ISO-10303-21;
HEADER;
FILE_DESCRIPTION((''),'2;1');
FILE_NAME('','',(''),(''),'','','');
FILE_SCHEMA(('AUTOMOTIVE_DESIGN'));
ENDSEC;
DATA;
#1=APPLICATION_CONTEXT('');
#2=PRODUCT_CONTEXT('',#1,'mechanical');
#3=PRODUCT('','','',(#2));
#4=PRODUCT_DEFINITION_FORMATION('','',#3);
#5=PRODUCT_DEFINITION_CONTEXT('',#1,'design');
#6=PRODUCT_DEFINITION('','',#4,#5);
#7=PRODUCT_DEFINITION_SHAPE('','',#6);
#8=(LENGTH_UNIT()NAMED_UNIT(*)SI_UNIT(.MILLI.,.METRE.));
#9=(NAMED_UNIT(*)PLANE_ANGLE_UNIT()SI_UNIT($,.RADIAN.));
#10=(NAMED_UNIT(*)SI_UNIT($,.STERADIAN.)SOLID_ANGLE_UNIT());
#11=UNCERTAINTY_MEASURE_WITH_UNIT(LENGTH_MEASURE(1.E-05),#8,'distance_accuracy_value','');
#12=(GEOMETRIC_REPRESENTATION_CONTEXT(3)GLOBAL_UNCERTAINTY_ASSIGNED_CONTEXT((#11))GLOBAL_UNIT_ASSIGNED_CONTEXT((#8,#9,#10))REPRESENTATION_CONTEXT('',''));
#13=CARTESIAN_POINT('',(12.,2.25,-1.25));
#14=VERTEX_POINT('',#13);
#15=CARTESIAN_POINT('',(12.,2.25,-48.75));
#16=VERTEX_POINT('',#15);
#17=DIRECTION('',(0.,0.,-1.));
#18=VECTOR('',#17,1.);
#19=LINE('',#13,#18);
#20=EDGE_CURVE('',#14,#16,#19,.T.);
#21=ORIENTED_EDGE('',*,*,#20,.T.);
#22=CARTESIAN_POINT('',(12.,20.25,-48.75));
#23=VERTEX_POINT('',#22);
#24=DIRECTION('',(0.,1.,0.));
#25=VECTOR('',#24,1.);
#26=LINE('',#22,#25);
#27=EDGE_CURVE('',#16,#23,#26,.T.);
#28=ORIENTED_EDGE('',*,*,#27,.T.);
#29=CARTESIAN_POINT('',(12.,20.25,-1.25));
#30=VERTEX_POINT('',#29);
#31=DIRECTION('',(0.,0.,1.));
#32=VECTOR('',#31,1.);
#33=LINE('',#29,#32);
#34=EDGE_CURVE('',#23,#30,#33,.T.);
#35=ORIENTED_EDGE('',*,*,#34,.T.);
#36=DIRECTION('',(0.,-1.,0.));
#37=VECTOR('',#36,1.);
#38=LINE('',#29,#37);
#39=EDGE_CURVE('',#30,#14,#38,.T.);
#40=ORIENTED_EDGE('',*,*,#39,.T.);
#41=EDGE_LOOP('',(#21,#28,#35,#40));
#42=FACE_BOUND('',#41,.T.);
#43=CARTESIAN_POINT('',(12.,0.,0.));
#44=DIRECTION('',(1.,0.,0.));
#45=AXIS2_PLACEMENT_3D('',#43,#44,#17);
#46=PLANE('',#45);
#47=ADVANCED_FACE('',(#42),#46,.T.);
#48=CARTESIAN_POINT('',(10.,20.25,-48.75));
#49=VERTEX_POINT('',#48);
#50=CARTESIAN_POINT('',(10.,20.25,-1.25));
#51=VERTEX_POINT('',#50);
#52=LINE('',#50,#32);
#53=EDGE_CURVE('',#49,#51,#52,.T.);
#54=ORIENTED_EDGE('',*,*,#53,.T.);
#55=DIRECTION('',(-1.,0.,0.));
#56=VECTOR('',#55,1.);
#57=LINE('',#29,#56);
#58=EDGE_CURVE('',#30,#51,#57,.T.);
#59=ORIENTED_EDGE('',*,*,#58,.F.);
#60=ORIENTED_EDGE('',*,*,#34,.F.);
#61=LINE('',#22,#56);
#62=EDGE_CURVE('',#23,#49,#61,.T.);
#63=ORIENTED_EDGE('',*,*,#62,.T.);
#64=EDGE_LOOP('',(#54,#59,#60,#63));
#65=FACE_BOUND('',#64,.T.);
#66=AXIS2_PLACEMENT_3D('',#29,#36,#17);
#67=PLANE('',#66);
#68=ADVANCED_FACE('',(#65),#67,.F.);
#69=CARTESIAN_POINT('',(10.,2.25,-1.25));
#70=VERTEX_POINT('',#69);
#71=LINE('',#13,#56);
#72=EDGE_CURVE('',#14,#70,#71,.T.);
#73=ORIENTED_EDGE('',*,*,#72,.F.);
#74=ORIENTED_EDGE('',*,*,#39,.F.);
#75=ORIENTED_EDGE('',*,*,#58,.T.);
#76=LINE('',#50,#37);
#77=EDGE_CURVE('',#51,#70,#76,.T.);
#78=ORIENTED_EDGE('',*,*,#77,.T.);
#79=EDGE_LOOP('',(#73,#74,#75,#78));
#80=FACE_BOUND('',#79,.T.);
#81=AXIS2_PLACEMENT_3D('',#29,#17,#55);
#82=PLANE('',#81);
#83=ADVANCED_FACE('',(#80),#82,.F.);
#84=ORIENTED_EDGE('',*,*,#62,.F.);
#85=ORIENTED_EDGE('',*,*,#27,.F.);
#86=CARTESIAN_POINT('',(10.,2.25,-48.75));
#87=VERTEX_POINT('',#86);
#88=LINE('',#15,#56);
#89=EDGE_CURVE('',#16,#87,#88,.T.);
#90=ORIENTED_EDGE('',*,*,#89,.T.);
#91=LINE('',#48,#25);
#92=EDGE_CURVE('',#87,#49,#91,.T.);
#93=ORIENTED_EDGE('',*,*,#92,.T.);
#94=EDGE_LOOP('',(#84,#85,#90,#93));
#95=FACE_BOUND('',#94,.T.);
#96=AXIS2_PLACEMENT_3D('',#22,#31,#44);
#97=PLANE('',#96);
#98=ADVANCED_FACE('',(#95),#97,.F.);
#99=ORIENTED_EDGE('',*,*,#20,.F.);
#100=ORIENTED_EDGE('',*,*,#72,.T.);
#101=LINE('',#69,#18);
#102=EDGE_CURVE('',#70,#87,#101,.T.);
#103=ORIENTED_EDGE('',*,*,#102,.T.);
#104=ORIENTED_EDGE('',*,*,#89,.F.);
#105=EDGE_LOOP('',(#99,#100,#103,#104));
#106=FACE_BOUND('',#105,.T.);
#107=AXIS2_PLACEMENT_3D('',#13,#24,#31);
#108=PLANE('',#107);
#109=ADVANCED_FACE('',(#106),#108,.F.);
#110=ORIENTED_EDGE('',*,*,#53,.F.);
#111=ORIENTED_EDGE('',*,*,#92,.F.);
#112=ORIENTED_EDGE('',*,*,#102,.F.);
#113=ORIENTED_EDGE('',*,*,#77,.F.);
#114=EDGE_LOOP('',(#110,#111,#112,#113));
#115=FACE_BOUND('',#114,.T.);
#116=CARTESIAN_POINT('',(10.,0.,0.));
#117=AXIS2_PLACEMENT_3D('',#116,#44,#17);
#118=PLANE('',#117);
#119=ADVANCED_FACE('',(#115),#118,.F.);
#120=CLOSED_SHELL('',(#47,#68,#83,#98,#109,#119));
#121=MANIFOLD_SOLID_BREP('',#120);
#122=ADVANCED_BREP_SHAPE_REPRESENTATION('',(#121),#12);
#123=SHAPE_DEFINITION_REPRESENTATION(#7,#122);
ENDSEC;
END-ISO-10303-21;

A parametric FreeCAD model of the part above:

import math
import FreeCAD as App
import Part
import Sketcher

doc = App.newDocument("Part")
params = doc.addObject("Spreadsheet::Sheet", "Params")
for row, (alias, value) in enumerate([
    ("sketch1_height", "50 mm"),
    ("sketch1_width", "22.5 mm"),
    ("pad1_length", "10 mm"),
    ("sketch2_height", "6.05 mm"),
    ("pocket1_length", "10 mm"),
    ("sketch3_height", "10 mm"),
    ("pocket2_length", "10 mm"),
    ("sketch4_height", "48 mm"),
    ("sketch4_width", "18.5 mm"),
    ("pocket3_length", "8 mm"),
    ("sketch5_width", "10 mm"),
    ("sketch5_height", "22.5 mm"),
    ("sketch6_width", "18 mm"),
    ("sketch6_height", "47.5 mm"),
    ("pad2_length", "2 mm"),
], start=1):
    params.set(f"A{row}", alias)
    params.set(f"B{row}", "=" + value)
    params.setAlias(f"B{row}", alias)

body = doc.addObject("PartDesign::Body", "Body")

# Sketch on YZ plane
sketch1 = doc.addObject("Sketcher::SketchObject", "Sketch")
body.addObject(sketch1)
sketch1.AttachmentSupport = (doc.YZ_Plane, [""])
sketch1.MapMode = "FlatFace"
sketch1.addGeometry(Part.LineSegment(App.Vector(22.5, 0, 0), App.Vector(0, 0, 0)), False)
sketch1.addGeometry(Part.LineSegment(App.Vector(0, 0, 0), App.Vector(0, -50, 0)), False)
sketch1.addGeometry(Part.LineSegment(App.Vector(0, -50, 0), App.Vector(22.5, -50, 0)), False)
sketch1.addGeometry(Part.LineSegment(App.Vector(22.5, -50, 0), App.Vector(22.5, 0, 0)), False)
sketch1.addConstraint(Sketcher.Constraint("Coincident", 0, 2, 1, 1))
sketch1.addConstraint(Sketcher.Constraint("Coincident", 1, 2, 2, 1))
sketch1.addConstraint(Sketcher.Constraint("Coincident", 2, 2, 3, 1))
sketch1.addConstraint(Sketcher.Constraint("Coincident", 3, 2, 0, 1))
sketch1.addConstraint(Sketcher.Constraint("Horizontal", 0))
sketch1.addConstraint(Sketcher.Constraint("Vertical", 1))
sketch1.addConstraint(Sketcher.Constraint("Horizontal", 2))
sketch1.addConstraint(Sketcher.Constraint("Vertical", 3))
sketch1.addConstraint(Sketcher.Constraint("Coincident", 0, 2, -1, 1))
sketch1.addConstraint(Sketcher.Constraint("DistanceY", 1, 2, 1, 1, 50.0))
sketch1.addConstraint(Sketcher.Constraint("DistanceX", 0, 2, 0, 1, 22.5))
sketch1.setExpression("Constraints[9]", "Params.sketch1_height")
sketch1.setExpression("Constraints[10]", "Params.sketch1_width")
pad1 = doc.addObject("PartDesign::Pad", "Pad")
body.addObject(pad1)
pad1.Profile = sketch1
pad1.setExpression("Length", "Params.pad1_length")

# Sketch on XY plane
sketch2 = doc.addObject("Sketcher::SketchObject", "Sketch001")
body.addObject(sketch2)
sketch2.AttachmentSupport = (doc.XY_Plane, [""])
sketch2.MapMode = "FlatFace"
sketch2.addGeometry(Part.LineSegment(App.Vector(7.05, 8.225, 0), App.Vector(7.05, 14.275, 0)), False)
sketch2.addGeometry(Part.ArcOfCircle(Part.Circle(App.Vector(5.325, 14.275, 0), App.Vector(0, 0, 1), 1.725), math.radians(0), math.radians(180)), False)
sketch2.addGeometry(Part.LineSegment(App.Vector(3.6, 14.275, 0), App.Vector(3.6, 8.225, 0)), False)
sketch2.addGeometry(Part.ArcOfCircle(Part.Circle(App.Vector(5.325, 8.225, 0), App.Vector(0, 0, 1), 1.725), math.radians(180), math.radians(360)), False)
sketch2.addConstraint(Sketcher.Constraint("Tangent", 0, 2, 1, 1))
sketch2.addConstraint(Sketcher.Constraint("Tangent", 1, 2, 2, 1))
sketch2.addConstraint(Sketcher.Constraint("Tangent", 2, 2, 3, 1))
sketch2.addConstraint(Sketcher.Constraint("Tangent", 3, 2, 0, 1))
sketch2.addConstraint(Sketcher.Constraint("Vertical", 0))
sketch2.addConstraint(Sketcher.Constraint("Vertical", 2))
sketch2.addConstraint(Sketcher.Constraint("Radius", 1, 1.725))
sketch2.addConstraint(Sketcher.Constraint("DistanceY", 0, 1, 0, 2, 6.05))
sketch2.addConstraint(Sketcher.Constraint("DistanceX", -1, 1, 1, 2, 3.6))
sketch2.addConstraint(Sketcher.Constraint("DistanceY", -1, 1, 1, 3, 14.275))
sketch2.setExpression("Constraints[7]", "Params.sketch2_height")
pocket1 = doc.addObject("PartDesign::Pocket", "Pocket")
body.addObject(pocket1)
pocket1.Profile = sketch2
pocket1.setExpression("Length", "Params.pocket1_length")

# Sketch on XY plane
sketch3 = doc.addObject("Sketcher::SketchObject", "Sketch002")
body.addObject(sketch3)
sketch3.AttachmentSupport = (doc.XY_Plane, [""])
sketch3.MapMode = "FlatFace"
sketch3.AttachmentOffset = App.Placement(App.Vector(0, 0, -50), App.Rotation())
sketch3.addGeometry(Part.LineSegment(App.Vector(3, 6.25, 0), App.Vector(3, 16.25, 0)), False)
sketch3.addGeometry(Part.ArcOfCircle(Part.Circle(App.Vector(5.225, 16.25, 0), App.Vector(0, 0, 1), 2.225), math.radians(0), math.radians(180)), False)
sketch3.addGeometry(Part.LineSegment(App.Vector(7.45, 16.25, 0), App.Vector(7.45, 6.25, 0)), False)
sketch3.addGeometry(Part.ArcOfCircle(Part.Circle(App.Vector(5.225, 6.25, 0), App.Vector(0, 0, 1), 2.225), math.radians(180), math.radians(360)), False)
sketch3.addConstraint(Sketcher.Constraint("Tangent", 0, 2, 1, 2))
sketch3.addConstraint(Sketcher.Constraint("Tangent", 1, 1, 2, 1))
sketch3.addConstraint(Sketcher.Constraint("Tangent", 2, 2, 3, 2))
sketch3.addConstraint(Sketcher.Constraint("Tangent", 3, 1, 0, 1))
sketch3.addConstraint(Sketcher.Constraint("Vertical", 0))
sketch3.addConstraint(Sketcher.Constraint("Vertical", 2))
sketch3.addConstraint(Sketcher.Constraint("DistanceY", 0, 1, 0, 2, 10.0))
sketch3.addConstraint(Sketcher.Constraint("DistanceX", -1, 1, 0, 2, 3.0))
sketch3.addConstraint(Sketcher.Constraint("Radius", 1, 2.225))
sketch3.addConstraint(Sketcher.Constraint("DistanceY", -1, 1, 1, 3, 16.25))
sketch3.setExpression("Constraints[6]", "Params.sketch3_height")
pocket2 = doc.addObject("PartDesign::Pocket", "Pocket001")
body.addObject(pocket2)
pocket2.Profile = sketch3
pocket2.setExpression("Length", "Params.pocket2_length")
pocket2.Reversed = True

# Sketch on YZ plane
sketch4 = doc.addObject("Sketcher::SketchObject", "Sketch003")
body.addObject(sketch4)
sketch4.AttachmentSupport = (doc.YZ_Plane, [""])
sketch4.MapMode = "FlatFace"
sketch4.AttachmentOffset = App.Placement(App.Vector(0, 0, 10), App.Rotation())
sketch4.addGeometry(Part.LineSegment(App.Vector(20.5, -1, 0), App.Vector(2, -1, 0)), False)
sketch4.addGeometry(Part.LineSegment(App.Vector(2, -1, 0), App.Vector(2, -49, 0)), False)
sketch4.addGeometry(Part.LineSegment(App.Vector(2, -49, 0), App.Vector(20.5, -49, 0)), False)
sketch4.addGeometry(Part.LineSegment(App.Vector(20.5, -49, 0), App.Vector(20.5, -1, 0)), False)
sketch4.addConstraint(Sketcher.Constraint("Coincident", 0, 2, 1, 1))
sketch4.addConstraint(Sketcher.Constraint("Coincident", 1, 2, 2, 1))
sketch4.addConstraint(Sketcher.Constraint("Coincident", 2, 2, 3, 1))
sketch4.addConstraint(Sketcher.Constraint("Coincident", 3, 2, 0, 1))
sketch4.addConstraint(Sketcher.Constraint("Horizontal", 0))
sketch4.addConstraint(Sketcher.Constraint("Vertical", 1))
sketch4.addConstraint(Sketcher.Constraint("Horizontal", 2))
sketch4.addConstraint(Sketcher.Constraint("Vertical", 3))
sketch4.addConstraint(Sketcher.Constraint("DistanceY", 1, 2, 1, 1, 48.0))
sketch4.addConstraint(Sketcher.Constraint("DistanceX", 0, 2, 0, 1, 18.5))
sketch4.addConstraint(Sketcher.Constraint("DistanceX", -1, 1, 0, 2, 2.0))
sketch4.addConstraint(Sketcher.Constraint("DistanceY", 0, 2, -1, 1, 1.0))
sketch4.setExpression("Constraints[8]", "Params.sketch4_height")
sketch4.setExpression("Constraints[9]", "Params.sketch4_width")
pocket3 = doc.addObject("PartDesign::Pocket", "Pocket002")
body.addObject(pocket3)
pocket3.Profile = sketch4
pocket3.setExpression("Length", "Params.pocket3_length")

# Sketch on XY plane
sketch5 = doc.addObject("Sketcher::SketchObject", "Sketch004")
body.addObject(sketch5)
sketch5.AttachmentSupport = (doc.XY_Plane, [""])
sketch5.MapMode = "FlatFace"
sketch5.addGeometry(Part.LineSegment(App.Vector(0, 22.5, 0), App.Vector(0, 0, 0)), False)
sketch5.addGeometry(Part.LineSegment(App.Vector(0, 0, 0), App.Vector(10, 0, 0)), False)
sketch5.addGeometry(Part.LineSegment(App.Vector(10, 0, 0), App.Vector(10, 22.5, 0)), False)
sketch5.addGeometry(Part.LineSegment(App.Vector(10, 22.5, 0), App.Vector(0, 22.5, 0)), False)
sketch5.addConstraint(Sketcher.Constraint("Coincident", 0, 2, 1, 1))
sketch5.addConstraint(Sketcher.Constraint("Coincident", 1, 2, 2, 1))
sketch5.addConstraint(Sketcher.Constraint("Coincident", 2, 2, 3, 1))
sketch5.addConstraint(Sketcher.Constraint("Coincident", 3, 2, 0, 1))
sketch5.addConstraint(Sketcher.Constraint("Vertical", 0))
sketch5.addConstraint(Sketcher.Constraint("Horizontal", 1))
sketch5.addConstraint(Sketcher.Constraint("Vertical", 2))
sketch5.addConstraint(Sketcher.Constraint("Horizontal", 3))
sketch5.addConstraint(Sketcher.Constraint("Coincident", 0, 2, -1, 1))
sketch5.addConstraint(Sketcher.Constraint("DistanceX", 1, 1, 1, 2, 10.0))
sketch5.addConstraint(Sketcher.Constraint("DistanceY", 0, 2, 0, 1, 22.5))
sketch5.setExpression("Constraints[9]", "Params.sketch5_width")
sketch5.setExpression("Constraints[10]", "Params.sketch5_height")
pocket4 = doc.addObject("PartDesign::Pocket", "Pocket003")
body.addObject(pocket4)
pocket4.Profile = sketch5
pocket4.Type = "ThroughAll"
body2 = doc.addObject("PartDesign::Body", "Body001")

# Sketch on YZ plane
sketch6 = doc.addObject("Sketcher::SketchObject", "Sketch005")
body2.addObject(sketch6)
sketch6.AttachmentSupport = (doc.getObject("YZ_Plane001"), [""])
sketch6.MapMode = "FlatFace"
sketch6.AttachmentOffset = App.Placement(App.Vector(0, 0, 10), App.Rotation())
sketch6.addGeometry(Part.LineSegment(App.Vector(20.25, -1.25, 0), App.Vector(2.25, -1.25, 0)), False)
sketch6.addGeometry(Part.LineSegment(App.Vector(2.25, -1.25, 0), App.Vector(2.25, -48.75, 0)), False)
sketch6.addGeometry(Part.LineSegment(App.Vector(2.25, -48.75, 0), App.Vector(20.25, -48.75, 0)), False)
sketch6.addGeometry(Part.LineSegment(App.Vector(20.25, -48.75, 0), App.Vector(20.25, -1.25, 0)), False)
sketch6.addConstraint(Sketcher.Constraint("Coincident", 0, 2, 1, 1))
sketch6.addConstraint(Sketcher.Constraint("Coincident", 1, 2, 2, 1))
sketch6.addConstraint(Sketcher.Constraint("Coincident", 2, 2, 3, 1))
sketch6.addConstraint(Sketcher.Constraint("Coincident", 3, 2, 0, 1))
sketch6.addConstraint(Sketcher.Constraint("Horizontal", 0))
sketch6.addConstraint(Sketcher.Constraint("Vertical", 1))
sketch6.addConstraint(Sketcher.Constraint("Horizontal", 2))
sketch6.addConstraint(Sketcher.Constraint("Vertical", 3))
sketch6.addConstraint(Sketcher.Constraint("DistanceX", 0, 2, 0, 1, 18.0))
sketch6.addConstraint(Sketcher.Constraint("DistanceY", 1, 2, 1, 1, 47.5))
sketch6.addConstraint(Sketcher.Constraint("DistanceX", -1, 1, 0, 2, 2.25))
sketch6.addConstraint(Sketcher.Constraint("DistanceY", 0, 2, -1, 1, 1.25))
sketch6.setExpression("Constraints[8]", "Params.sketch6_width")
sketch6.setExpression("Constraints[9]", "Params.sketch6_height")
pad2 = doc.addObject("PartDesign::Pad", "Pad001")
body2.addObject(pad2)
pad2.Profile = sketch6
pad2.setExpression("Length", "Params.pad2_length")

doc.recompute()
